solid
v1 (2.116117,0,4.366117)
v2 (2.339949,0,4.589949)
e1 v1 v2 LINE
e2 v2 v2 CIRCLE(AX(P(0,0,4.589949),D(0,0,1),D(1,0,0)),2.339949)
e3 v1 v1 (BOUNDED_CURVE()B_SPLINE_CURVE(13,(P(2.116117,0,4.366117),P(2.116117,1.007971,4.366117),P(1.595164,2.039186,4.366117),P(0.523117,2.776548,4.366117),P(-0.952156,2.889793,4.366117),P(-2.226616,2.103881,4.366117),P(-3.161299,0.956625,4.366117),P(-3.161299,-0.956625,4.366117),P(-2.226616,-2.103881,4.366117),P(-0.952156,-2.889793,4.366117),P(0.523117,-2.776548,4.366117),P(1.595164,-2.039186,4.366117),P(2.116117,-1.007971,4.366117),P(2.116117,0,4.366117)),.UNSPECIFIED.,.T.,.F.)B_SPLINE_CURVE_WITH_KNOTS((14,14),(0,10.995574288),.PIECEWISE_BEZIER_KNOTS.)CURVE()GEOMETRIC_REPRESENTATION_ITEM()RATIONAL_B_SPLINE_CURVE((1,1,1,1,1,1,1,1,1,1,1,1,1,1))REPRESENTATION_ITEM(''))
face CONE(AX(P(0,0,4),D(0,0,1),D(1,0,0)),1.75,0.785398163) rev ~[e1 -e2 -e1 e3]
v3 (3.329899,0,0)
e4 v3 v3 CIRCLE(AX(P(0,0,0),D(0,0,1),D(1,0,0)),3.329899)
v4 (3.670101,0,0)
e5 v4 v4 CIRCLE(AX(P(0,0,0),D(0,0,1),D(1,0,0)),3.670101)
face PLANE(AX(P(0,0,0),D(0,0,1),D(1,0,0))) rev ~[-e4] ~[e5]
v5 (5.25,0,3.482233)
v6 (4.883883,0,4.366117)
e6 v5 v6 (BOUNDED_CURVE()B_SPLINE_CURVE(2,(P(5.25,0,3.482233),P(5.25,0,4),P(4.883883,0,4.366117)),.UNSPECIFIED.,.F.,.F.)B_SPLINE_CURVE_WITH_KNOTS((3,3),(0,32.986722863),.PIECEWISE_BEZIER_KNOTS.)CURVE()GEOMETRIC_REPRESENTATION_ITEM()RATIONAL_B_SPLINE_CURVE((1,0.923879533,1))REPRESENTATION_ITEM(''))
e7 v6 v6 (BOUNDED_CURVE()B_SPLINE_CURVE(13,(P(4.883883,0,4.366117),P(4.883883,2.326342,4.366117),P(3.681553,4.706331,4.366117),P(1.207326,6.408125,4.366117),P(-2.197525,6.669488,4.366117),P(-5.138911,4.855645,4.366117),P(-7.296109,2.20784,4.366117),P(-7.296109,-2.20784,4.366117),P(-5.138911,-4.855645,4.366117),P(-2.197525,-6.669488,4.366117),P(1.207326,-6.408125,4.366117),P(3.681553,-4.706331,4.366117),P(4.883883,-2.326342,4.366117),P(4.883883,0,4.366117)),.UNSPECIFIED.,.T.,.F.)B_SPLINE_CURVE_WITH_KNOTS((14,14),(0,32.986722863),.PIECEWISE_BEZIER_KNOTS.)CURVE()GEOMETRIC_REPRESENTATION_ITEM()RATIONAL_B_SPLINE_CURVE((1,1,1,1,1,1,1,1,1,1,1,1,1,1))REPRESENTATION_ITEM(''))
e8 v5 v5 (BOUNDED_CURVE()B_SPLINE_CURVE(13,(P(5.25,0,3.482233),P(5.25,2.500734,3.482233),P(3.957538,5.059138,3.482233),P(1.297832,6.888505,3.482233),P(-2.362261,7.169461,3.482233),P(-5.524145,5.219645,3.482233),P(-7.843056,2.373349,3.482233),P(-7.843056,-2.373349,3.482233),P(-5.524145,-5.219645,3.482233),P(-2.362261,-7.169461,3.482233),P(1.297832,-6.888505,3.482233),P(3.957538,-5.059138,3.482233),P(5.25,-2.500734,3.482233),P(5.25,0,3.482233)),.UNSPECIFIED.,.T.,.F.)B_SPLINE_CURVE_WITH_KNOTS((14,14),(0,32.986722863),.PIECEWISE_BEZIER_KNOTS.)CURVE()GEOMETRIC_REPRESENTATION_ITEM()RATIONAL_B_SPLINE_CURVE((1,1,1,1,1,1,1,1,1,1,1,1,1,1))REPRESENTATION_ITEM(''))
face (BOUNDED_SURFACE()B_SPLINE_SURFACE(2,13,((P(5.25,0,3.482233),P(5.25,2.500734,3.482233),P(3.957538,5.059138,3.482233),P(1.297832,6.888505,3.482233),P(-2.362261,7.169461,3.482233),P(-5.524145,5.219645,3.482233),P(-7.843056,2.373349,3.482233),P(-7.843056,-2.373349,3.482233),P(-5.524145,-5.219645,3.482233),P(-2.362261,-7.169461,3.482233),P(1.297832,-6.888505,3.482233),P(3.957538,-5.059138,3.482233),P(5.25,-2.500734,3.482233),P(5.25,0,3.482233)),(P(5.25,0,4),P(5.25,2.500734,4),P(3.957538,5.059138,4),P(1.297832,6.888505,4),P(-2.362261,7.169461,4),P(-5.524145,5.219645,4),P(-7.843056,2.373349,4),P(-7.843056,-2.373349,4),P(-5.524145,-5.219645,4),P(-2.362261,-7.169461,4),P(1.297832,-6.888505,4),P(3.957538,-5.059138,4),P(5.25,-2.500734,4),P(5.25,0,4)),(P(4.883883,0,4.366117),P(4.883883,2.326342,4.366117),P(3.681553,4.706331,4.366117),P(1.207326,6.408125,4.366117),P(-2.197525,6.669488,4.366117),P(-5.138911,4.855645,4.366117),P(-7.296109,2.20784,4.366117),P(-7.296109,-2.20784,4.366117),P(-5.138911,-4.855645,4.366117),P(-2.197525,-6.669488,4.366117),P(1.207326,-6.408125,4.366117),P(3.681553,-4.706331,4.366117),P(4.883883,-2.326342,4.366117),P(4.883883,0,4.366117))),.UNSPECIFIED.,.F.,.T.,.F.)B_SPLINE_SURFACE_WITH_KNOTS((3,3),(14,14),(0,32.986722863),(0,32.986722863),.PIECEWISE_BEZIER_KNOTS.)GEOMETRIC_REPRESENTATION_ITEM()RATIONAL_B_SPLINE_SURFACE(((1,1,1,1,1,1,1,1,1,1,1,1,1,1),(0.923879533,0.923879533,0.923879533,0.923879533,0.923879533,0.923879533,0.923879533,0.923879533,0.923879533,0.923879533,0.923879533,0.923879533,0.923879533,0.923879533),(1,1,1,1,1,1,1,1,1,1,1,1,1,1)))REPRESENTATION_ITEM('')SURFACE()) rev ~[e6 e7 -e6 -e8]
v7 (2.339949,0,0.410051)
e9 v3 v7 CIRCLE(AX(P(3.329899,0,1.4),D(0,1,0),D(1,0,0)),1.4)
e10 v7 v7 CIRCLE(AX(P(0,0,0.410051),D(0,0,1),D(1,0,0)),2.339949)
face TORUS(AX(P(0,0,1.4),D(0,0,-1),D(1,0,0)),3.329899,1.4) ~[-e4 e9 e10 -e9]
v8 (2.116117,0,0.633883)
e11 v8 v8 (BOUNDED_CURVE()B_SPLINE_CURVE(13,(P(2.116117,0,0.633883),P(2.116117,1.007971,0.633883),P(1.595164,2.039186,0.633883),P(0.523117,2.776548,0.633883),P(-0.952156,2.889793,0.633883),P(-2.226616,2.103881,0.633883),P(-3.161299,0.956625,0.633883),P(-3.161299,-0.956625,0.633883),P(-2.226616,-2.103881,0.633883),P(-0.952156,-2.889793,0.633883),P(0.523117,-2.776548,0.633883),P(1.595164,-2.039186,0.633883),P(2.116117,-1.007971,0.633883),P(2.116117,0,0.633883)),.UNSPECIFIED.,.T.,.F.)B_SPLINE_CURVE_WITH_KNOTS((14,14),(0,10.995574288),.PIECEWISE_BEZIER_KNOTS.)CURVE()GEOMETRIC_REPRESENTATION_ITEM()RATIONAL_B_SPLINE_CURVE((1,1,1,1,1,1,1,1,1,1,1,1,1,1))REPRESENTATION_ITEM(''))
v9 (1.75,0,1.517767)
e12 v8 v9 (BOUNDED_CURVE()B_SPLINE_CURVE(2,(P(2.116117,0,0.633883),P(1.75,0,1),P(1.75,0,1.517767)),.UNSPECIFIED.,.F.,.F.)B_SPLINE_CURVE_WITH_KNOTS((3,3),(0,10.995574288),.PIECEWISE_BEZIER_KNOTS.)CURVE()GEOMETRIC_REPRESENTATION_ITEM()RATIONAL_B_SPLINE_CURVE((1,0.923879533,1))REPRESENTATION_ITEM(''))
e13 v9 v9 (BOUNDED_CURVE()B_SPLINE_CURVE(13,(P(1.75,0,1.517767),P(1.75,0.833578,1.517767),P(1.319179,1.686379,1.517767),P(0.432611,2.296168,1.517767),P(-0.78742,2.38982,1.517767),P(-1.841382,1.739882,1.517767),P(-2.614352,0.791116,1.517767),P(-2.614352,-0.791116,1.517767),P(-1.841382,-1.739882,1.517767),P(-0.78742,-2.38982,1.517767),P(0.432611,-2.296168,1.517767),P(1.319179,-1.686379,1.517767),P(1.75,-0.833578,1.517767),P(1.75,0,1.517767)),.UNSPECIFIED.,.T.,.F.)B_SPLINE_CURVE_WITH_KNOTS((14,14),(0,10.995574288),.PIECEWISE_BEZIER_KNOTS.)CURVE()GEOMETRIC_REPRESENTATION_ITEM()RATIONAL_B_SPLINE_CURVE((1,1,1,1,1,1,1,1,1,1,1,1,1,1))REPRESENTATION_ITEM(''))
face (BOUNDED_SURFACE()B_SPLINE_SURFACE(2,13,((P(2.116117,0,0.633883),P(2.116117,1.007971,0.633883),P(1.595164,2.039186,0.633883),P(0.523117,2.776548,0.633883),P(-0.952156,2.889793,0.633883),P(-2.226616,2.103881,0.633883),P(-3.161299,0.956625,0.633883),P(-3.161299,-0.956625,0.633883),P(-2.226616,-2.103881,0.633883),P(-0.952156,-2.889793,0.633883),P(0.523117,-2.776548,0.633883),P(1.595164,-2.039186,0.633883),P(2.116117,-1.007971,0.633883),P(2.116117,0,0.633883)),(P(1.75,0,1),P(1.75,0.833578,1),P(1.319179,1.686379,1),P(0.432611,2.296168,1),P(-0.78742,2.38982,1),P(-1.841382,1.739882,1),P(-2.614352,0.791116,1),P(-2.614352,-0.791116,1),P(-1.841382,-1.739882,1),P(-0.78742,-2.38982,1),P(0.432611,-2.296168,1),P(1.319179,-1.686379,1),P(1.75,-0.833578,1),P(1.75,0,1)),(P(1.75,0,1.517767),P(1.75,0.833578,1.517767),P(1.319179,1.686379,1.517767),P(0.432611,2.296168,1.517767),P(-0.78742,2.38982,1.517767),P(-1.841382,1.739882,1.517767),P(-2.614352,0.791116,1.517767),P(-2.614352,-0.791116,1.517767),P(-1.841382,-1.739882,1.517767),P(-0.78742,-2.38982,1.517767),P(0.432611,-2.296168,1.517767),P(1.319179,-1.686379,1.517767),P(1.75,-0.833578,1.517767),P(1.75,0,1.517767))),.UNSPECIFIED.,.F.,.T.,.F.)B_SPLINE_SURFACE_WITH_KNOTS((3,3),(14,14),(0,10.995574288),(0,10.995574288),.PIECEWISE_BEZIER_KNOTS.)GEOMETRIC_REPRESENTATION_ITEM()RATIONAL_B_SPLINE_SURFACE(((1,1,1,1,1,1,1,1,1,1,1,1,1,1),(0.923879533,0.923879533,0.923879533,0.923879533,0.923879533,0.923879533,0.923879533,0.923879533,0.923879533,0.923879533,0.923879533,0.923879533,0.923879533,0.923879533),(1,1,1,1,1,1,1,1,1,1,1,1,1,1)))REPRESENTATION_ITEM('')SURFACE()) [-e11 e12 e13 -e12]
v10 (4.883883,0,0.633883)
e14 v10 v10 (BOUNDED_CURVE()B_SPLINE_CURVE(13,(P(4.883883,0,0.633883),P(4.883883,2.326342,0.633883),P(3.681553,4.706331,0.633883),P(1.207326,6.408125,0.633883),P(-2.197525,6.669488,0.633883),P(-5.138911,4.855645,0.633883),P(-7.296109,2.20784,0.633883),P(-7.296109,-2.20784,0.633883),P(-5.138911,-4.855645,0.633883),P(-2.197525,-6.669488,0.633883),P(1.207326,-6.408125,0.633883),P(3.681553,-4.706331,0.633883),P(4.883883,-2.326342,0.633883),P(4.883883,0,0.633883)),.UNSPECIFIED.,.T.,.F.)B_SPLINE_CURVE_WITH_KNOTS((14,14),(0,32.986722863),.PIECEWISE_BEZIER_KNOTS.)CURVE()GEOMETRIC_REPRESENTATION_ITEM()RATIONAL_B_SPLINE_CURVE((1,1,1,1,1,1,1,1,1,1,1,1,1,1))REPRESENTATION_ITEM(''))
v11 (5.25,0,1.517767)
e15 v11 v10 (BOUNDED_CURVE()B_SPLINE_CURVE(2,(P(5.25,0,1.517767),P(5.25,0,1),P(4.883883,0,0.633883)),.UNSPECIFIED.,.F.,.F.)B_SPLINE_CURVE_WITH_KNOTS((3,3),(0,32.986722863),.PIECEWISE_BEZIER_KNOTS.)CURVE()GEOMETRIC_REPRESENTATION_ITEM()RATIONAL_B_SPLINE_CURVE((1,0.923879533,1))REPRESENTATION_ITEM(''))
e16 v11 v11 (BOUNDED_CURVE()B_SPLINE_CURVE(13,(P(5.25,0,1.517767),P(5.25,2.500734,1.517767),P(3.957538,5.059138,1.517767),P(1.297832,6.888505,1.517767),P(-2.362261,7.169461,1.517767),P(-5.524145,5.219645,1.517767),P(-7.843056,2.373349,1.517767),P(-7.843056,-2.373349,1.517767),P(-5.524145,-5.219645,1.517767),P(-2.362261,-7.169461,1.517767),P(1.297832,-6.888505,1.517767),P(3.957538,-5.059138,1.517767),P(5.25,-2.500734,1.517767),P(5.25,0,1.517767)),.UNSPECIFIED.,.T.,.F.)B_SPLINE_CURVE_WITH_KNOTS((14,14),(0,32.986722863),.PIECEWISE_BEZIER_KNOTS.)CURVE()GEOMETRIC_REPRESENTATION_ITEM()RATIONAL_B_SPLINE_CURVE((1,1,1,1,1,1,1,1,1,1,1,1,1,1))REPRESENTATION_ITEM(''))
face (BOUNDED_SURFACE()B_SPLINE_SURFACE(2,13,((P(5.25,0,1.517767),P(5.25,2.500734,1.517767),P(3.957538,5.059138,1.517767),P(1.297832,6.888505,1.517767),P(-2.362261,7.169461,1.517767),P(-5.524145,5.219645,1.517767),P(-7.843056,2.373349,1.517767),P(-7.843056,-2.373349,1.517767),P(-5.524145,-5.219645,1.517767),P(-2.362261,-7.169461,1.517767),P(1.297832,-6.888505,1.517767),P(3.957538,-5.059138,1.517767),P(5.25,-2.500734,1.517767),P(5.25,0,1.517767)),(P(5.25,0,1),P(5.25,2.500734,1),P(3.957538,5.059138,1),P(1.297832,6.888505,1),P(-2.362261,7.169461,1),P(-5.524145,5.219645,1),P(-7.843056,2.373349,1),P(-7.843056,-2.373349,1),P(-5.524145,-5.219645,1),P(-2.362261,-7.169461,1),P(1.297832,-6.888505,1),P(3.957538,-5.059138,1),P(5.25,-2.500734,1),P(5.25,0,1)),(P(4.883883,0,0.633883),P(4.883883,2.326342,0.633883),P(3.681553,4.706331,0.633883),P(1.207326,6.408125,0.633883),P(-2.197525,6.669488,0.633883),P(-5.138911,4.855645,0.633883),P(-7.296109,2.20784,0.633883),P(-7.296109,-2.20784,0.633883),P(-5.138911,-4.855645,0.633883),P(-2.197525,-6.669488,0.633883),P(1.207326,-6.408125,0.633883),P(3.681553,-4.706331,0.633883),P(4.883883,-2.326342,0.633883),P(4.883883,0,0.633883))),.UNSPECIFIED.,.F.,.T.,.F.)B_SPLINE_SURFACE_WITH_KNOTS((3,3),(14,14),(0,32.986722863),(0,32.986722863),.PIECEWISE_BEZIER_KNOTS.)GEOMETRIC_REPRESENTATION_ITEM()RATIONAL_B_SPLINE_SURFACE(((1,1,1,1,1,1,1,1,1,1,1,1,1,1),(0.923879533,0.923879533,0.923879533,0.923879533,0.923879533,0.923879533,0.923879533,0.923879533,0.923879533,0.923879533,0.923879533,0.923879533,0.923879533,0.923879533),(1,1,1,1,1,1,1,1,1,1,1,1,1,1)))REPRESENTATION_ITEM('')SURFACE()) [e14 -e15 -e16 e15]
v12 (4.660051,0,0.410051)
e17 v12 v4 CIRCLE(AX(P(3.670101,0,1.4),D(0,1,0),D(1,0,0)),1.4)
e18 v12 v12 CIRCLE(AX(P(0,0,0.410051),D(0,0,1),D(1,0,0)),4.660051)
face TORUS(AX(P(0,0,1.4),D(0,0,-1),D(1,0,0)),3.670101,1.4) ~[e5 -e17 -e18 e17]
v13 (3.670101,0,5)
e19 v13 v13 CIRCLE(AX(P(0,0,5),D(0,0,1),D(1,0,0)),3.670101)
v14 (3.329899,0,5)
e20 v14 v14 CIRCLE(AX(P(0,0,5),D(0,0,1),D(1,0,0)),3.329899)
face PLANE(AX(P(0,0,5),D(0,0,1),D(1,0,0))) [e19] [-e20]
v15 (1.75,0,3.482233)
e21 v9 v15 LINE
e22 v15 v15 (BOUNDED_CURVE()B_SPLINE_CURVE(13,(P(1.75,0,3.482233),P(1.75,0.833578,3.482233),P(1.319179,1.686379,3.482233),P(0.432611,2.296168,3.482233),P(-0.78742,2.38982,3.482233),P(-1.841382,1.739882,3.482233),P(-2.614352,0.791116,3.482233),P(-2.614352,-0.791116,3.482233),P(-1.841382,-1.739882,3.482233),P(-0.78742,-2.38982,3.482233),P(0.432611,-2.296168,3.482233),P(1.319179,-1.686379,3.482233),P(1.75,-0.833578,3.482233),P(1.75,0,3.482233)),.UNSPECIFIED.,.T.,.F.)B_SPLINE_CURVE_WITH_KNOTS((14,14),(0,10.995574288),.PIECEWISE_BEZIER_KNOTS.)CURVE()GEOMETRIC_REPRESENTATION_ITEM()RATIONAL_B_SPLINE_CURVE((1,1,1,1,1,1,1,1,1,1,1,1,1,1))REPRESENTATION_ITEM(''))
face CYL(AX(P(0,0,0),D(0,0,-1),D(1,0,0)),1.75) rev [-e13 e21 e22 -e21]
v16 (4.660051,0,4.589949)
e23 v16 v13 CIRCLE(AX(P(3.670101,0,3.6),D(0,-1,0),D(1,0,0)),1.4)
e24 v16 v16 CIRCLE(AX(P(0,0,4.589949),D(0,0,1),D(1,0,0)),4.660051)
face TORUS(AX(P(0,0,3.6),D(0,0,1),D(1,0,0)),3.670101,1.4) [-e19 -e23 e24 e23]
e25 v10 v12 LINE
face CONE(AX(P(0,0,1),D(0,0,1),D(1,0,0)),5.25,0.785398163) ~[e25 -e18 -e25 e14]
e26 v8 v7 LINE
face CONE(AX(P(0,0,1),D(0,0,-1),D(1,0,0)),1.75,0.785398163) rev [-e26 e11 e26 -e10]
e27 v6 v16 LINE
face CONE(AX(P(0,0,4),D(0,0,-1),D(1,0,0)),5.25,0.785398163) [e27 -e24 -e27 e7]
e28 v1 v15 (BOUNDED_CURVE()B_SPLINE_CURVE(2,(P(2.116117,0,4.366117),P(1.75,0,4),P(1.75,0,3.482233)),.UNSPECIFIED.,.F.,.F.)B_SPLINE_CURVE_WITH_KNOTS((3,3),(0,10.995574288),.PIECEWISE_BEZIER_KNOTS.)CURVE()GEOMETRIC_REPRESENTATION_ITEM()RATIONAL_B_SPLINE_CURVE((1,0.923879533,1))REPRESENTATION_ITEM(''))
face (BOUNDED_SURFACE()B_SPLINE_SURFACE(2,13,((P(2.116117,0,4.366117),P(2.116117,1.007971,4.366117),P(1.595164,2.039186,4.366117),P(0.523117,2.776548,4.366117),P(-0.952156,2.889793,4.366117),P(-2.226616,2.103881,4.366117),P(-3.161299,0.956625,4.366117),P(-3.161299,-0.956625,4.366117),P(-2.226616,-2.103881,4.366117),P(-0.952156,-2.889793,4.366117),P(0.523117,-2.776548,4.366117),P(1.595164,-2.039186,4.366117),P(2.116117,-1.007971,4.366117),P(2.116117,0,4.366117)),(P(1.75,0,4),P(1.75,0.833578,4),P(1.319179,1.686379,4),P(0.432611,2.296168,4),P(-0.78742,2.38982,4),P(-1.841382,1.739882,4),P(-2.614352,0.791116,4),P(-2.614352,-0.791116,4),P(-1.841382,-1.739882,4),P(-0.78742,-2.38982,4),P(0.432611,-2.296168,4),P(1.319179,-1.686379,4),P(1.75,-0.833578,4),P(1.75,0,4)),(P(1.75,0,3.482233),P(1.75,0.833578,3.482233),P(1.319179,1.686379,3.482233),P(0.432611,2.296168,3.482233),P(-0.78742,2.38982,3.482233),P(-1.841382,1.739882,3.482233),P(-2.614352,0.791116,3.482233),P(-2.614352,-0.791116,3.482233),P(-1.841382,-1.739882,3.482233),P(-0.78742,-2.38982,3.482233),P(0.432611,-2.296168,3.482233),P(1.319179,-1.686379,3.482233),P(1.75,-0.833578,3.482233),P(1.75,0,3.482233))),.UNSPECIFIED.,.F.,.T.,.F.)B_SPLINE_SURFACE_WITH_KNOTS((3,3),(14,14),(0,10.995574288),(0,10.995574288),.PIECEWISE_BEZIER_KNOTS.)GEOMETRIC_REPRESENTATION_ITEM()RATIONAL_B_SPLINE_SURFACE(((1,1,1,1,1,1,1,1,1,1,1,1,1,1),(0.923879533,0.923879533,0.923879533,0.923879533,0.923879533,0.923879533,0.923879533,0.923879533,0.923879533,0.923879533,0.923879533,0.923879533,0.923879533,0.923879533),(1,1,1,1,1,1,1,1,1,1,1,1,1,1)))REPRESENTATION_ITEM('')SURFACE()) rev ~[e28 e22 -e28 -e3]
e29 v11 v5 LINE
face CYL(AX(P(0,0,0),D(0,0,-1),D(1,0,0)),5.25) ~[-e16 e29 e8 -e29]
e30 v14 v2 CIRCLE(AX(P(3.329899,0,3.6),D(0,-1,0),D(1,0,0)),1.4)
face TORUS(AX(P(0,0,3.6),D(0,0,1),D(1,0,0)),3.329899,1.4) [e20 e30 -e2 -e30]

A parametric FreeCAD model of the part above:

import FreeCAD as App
import Part
import Sketcher


def edges_at(feature, points):
    """Names of the edges that pass closest to the given points."""
    edges = feature.Shape.Edges
    near = lambda p: min(range(len(edges)), key=lambda i: edges[i].distToShape(Part.Vertex(*p))[0])
    return sorted({f"Edge{near(p) + 1}" for p in points})

doc = App.newDocument("Part")
body = doc.addObject("PartDesign::Body", "Body")

sketch1 = doc.addObject("Sketcher::SketchObject", "Sketch")
body.addObject(sketch1)
sketch1.AttachmentSupport = (doc.XY_Plane, [""])
sketch1.MapMode = "FlatFace"
sketch1.addGeometry([
    Part.Circle(App.Vector(0, 0, 0), App.Vector(0, 0, 1), 5.2),
    Part.Circle(App.Vector(0, 0, 0), App.Vector(0, 0, 1), 1.8),
], False)
sketch1.addConstraint([
    Sketcher.Constraint("Coincident", 0, 3, -1, 1),
    Sketcher.Constraint("Coincident", 1, 3, -1, 1),
    Sketcher.Constraint("Diameter", 1, 3.5),
    Sketcher.Constraint("Diameter", 0, 10.5),
])
pad1 = doc.addObject("PartDesign::Pad", "Pad")
body.addObject(pad1)
pad1.Profile = sketch1
pad1.Length = 5
doc.recompute()

chamfer = doc.addObject("PartDesign::Chamfer", "Chamfer")
body.addObject(chamfer)
chamfer.Base = (pad1, edges_at(pad1, [
    (-1.632, 0.633, 5),
    (-4.895, -1.899, 5),
    (-4.895, -1.899, 0),
    (-1.632, 0.633, 0),
]))
chamfer.Size = 1
doc.recompute()

fillet = doc.addObject("PartDesign::Fillet", "Fillet")
body.addObject(fillet)
fillet.Base = (chamfer, edges_at(chamfer, [
    (-4.895, -1.899, 4),
    (-4.895, 1.899, 1),
    (-1.632, 0.633, 4),
    (-1.632, -0.633, 1),
]))
fillet.Radius = 1.25
doc.recompute()

fillet2 = doc.addObject("PartDesign::Fillet", "Fillet001")
body.addObject(fillet2)
fillet2.Base = (fillet, edges_at(fillet, [
    (-3.962, -1.537, 0),
    (-2.564, 0.994, 0),
    (-2.564, -0.994, 5),
    (-3.962, 1.537, 5),
]))
fillet2.Radius = 1.4

doc.recompute()
